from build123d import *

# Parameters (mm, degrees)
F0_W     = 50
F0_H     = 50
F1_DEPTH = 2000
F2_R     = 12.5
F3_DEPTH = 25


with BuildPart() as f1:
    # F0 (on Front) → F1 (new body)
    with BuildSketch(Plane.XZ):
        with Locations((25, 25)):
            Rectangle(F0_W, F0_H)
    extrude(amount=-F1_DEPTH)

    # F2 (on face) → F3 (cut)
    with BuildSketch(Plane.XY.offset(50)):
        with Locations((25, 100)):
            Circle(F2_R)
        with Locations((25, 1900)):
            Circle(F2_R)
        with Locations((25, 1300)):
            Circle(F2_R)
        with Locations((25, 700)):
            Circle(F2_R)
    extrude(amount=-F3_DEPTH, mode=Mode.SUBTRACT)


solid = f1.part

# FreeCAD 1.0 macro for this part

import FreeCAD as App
import Part
import Sketcher

V = App.Vector
Q = App.Units.Quantity

doc = App.newDocument("Part")
body = doc.addObject("PartDesign::Body", "Body")

sketch1 = body.newObject("Sketcher::SketchObject", "Sketch")
sketch1.AttachmentSupport = (doc.getObject("XZ_Plane"), [""])
sketch1.MapMode = "FlatFace"
sketch1.addGeometry([
    Part.LineSegment(V(0, 50, 0), V(0, 0, 0)),
    Part.LineSegment(V(0, 0, 0), V(50, 0, 0)),
    Part.LineSegment(V(50, 0, 0), V(50, 50, 0)),
    Part.LineSegment(V(50, 50, 0), V(0, 50, 0)),
], False)
sketch1.addConstraint([
    Sketcher.Constraint("Coincident", 0, 2, 1, 1),
    Sketcher.Constraint("Coincident", 1, 2, 2, 1),
    Sketcher.Constraint("Coincident", 2, 2, 3, 1),
    Sketcher.Constraint("Coincident", 3, 2, 0, 1),
    Sketcher.Constraint("Vertical", 0),
    Sketcher.Constraint("Horizontal", 1),
    Sketcher.Constraint("Vertical", 2),
    Sketcher.Constraint("Horizontal", 3),
    Sketcher.Constraint("Coincident", 0, 2, -1, 1),
    Sketcher.Constraint("Equal", 3, 0),
    Sketcher.Constraint("DistanceX", 1, 1, 1, 2, Q("50 mm")),
])
pad1 = body.newObject("PartDesign::Pad", "Pad")
pad1.Profile = sketch1
pad1.Length = 2000
pad1.Reversed = True

sketch2 = body.newObject("Sketcher::SketchObject", "Sketch001")
sketch2.AttachmentSupport = (doc.getObject("XY_Plane"), [""])
sketch2.MapMode = "FlatFace"
sketch2.AttachmentOffset = App.Placement(V(0, 0, 50), App.Rotation())
sketch2.addGeometry([
    Part.Circle(V(25, 100, 0), V(0, 0, 1), 12),
    Part.Circle(V(25, 1900, 0), V(0, 0, 1), 12),
    Part.Circle(V(25, 1300, 0), V(0, 0, 1), 12),
    Part.Circle(V(25, 700, 0), V(0, 0, 1), 12),
], False)
sketch2.addConstraint([
    Sketcher.Constraint("Equal", 0, 1),
    Sketcher.Constraint("Equal", 1, 2),
    Sketcher.Constraint("Equal", 2, 3),
    Sketcher.Constraint("Vertical", 0, 3, 1, 3),
    Sketcher.Constraint("Vertical", 1, 3, 2, 3),
    Sketcher.Constraint("Vertical", 2, 3, 3, 3),
    Sketcher.Constraint("Diameter", 0, Q("25 mm")),
    Sketcher.Constraint("DistanceX", -1, 1, 0, 3, Q("25 mm")),
    Sketcher.Constraint("DistanceY", -1, 1, 0, 3, Q("100 mm")),
    Sketcher.Constraint("DistanceY", -1, 1, 1, 3, Q("1900 mm")),
    Sketcher.Constraint("DistanceY", -1, 1, 2, 3, Q("1300 mm")),
    Sketcher.Constraint("DistanceY", -1, 1, 3, 3, Q("700 mm")),
])
pocket1 = body.newObject("PartDesign::Pocket", "Pocket")
pocket1.Profile = sketch2
pocket1.Length = 25

doc.recompute()
